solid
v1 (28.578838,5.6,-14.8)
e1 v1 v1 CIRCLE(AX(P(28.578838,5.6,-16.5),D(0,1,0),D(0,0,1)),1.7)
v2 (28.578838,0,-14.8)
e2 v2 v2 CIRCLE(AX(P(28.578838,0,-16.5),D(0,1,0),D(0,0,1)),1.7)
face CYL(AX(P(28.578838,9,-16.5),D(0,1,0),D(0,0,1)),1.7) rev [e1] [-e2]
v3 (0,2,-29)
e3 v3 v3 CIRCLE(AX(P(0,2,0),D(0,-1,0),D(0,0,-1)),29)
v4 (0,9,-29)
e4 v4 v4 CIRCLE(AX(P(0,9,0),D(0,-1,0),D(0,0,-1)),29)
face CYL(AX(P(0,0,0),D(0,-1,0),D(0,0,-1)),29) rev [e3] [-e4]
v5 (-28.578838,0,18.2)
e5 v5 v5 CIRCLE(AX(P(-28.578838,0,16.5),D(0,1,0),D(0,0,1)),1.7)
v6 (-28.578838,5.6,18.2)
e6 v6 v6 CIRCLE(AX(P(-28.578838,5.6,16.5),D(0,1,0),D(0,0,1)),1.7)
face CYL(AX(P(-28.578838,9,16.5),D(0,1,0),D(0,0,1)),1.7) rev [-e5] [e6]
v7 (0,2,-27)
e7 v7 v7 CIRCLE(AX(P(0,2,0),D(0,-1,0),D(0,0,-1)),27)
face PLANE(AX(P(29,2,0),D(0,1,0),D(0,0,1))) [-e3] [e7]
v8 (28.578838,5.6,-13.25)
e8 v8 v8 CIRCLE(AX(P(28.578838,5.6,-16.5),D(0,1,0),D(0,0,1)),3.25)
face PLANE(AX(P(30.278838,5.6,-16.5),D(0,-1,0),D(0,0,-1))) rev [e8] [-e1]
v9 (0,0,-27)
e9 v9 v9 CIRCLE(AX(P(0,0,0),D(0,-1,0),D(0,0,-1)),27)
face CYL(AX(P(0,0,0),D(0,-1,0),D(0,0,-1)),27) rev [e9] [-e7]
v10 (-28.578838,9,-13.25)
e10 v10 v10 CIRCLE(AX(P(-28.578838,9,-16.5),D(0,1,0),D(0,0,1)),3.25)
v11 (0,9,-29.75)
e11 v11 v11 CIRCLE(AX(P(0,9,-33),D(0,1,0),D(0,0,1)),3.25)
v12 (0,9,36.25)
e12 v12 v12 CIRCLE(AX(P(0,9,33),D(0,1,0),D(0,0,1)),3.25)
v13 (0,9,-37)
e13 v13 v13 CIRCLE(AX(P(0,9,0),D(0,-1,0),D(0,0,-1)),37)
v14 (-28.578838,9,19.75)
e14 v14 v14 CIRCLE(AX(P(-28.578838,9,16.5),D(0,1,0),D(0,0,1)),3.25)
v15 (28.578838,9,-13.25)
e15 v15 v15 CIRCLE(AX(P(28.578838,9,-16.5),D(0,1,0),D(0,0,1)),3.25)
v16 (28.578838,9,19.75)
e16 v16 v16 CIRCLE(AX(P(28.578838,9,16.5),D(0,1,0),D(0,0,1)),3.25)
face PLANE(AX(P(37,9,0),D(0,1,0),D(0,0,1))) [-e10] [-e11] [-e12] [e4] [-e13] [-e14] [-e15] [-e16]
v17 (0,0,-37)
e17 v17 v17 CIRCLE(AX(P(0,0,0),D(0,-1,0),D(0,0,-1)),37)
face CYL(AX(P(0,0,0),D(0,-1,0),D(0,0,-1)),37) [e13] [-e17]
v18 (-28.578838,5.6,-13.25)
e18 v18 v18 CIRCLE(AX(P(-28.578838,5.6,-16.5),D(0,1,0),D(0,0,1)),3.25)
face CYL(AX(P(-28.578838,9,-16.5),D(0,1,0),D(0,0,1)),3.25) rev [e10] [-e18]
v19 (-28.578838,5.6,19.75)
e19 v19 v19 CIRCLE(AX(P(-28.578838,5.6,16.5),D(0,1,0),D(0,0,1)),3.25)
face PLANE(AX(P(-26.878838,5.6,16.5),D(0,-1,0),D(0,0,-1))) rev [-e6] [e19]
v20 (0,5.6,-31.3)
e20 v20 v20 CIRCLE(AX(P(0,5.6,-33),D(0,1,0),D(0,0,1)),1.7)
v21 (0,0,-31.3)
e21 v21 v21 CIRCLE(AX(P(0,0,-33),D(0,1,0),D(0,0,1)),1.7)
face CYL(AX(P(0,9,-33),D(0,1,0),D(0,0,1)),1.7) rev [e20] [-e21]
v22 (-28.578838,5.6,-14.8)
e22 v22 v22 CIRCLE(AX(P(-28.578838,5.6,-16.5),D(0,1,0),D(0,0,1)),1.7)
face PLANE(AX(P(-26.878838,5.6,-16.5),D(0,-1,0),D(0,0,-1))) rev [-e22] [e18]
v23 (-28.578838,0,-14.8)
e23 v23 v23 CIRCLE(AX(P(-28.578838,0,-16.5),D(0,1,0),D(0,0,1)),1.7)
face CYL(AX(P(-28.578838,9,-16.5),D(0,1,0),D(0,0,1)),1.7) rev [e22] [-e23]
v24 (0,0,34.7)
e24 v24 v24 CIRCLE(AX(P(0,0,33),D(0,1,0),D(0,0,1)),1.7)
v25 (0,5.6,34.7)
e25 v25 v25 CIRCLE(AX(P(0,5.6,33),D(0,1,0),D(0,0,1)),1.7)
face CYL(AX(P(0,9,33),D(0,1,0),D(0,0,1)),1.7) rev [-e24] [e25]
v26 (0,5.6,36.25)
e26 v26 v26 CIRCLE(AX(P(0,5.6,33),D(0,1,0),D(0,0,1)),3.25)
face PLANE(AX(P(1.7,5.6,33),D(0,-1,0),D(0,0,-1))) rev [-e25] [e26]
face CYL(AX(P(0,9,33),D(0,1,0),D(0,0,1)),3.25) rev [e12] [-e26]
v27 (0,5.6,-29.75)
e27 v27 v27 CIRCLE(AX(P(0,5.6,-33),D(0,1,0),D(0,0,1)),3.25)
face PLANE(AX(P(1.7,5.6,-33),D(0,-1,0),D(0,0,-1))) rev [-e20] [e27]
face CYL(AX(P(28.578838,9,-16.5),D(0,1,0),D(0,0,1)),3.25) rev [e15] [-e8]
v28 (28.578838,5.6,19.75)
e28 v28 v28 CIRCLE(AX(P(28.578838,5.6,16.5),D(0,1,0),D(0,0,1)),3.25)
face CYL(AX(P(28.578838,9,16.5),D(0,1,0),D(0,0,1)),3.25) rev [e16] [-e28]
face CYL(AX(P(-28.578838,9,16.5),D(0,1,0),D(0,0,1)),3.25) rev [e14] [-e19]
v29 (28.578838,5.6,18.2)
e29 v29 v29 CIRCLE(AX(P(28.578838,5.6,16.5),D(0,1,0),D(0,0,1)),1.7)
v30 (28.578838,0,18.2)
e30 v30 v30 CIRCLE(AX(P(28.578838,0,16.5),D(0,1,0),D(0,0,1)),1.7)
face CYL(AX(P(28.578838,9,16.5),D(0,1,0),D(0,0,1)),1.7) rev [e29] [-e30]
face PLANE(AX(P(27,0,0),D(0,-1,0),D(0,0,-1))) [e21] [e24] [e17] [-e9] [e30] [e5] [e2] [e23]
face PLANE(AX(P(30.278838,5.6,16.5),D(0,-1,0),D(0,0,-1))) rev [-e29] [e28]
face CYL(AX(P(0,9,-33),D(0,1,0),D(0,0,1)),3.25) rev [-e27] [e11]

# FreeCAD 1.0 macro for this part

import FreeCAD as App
import Part
import Sketcher
from FreeCAD import Vector
Q = App.Units.Quantity


def add_polygon(sketch, points):
    """Adds a closed chain of lines whose ends are joined by coincident constraints."""
    first, n = sketch.GeometryCount, len(points)
    for a, b in zip(points, points[1:] + points[:1]):
        sketch.addGeometry(Part.LineSegment(App.Vector(*a, 0), App.Vector(*b, 0)), False)
    for i in range(n):
        sketch.addConstraint(Sketcher.Constraint("Coincident", first + i, 2, first + (i + 1) % n, 1))

doc = App.newDocument("Part")
body = doc.addObject("PartDesign::Body", "Body")

# Sketch on XY plane
sketch1 = body.newObject("Sketcher::SketchObject", "Sketch")
sketch1.AttachmentSupport = (doc.getObject("XY_Plane"), [""])
sketch1.MapMode = "FlatFace"
add_polygon(sketch1, [(27, 0), (37, 0), (37, 9), (29, 9), (29, 2), (27, 2)])  # lines 0-5
sketch1.addConstraint(Sketcher.Constraint("Horizontal", 0))
sketch1.addConstraint(Sketcher.Constraint("Vertical", 1))
sketch1.addConstraint(Sketcher.Constraint("Horizontal", 2))
sketch1.addConstraint(Sketcher.Constraint("Vertical", 3))
sketch1.addConstraint(Sketcher.Constraint("Horizontal", 4))
sketch1.addConstraint(Sketcher.Constraint("Vertical", 5))
sketch1.addConstraint(Sketcher.Constraint("PointOnObject", 0, 2, -1))
sketch1.addConstraint(Sketcher.Constraint("Equal", 4, 5))
sketch1.addConstraint(Sketcher.Constraint("DistanceX", 0, 1, 0, 2, Q("10 mm")))
sketch1.addConstraint(Sketcher.Constraint("DistanceX", 2, 2, 2, 1, Q("8 mm")))
sketch1.addConstraint(Sketcher.Constraint("DistanceY", 1, 1, 1, 2, Q("9 mm")))
sketch1.addConstraint(Sketcher.Constraint("DistanceX", -1, 1, 0, 2, Q("37 mm")))
revolution = body.newObject("PartDesign::Revolution", "Revolution")
revolution.Profile = sketch1
revolution.ReferenceAxis = (sketch1, ["V_Axis"])
revolution.Angle = 360

# Sketch on XZ plane
sketch2 = body.newObject("Sketcher::SketchObject", "Sketch001")
sketch2.AttachmentSupport = (doc.getObject("XZ_Plane"), [""])
sketch2.MapMode = "FlatFace"
sketch2.AttachmentOffset = App.Placement(Vector(0, 0, -9), App.Rotation())
sketch2.addGeometry(Part.Circle(Vector(28.578838, 16.5, 0), Vector(0, 0, 1), 1.7), False)
sketch2.addGeometry(Part.Circle(Vector(0, 33, 0), Vector(0, 0, 1), 1.7), False)
sketch2.addGeometry(Part.Circle(Vector(-28.578838, 16.5, 0), Vector(0, 0, 1), 1.7), False)
sketch2.addGeometry(Part.Circle(Vector(-28.578838, -16.5, 0), Vector(0, 0, 1), 1.7), False)
sketch2.addGeometry(Part.Circle(Vector(0, -33, 0), Vector(0, 0, 1), 1.7), False)
sketch2.addGeometry(Part.Circle(Vector(28.578838, -16.5, 0), Vector(0, 0, 1), 1.7), False)
sketch2.addConstraint(Sketcher.Constraint("Equal", 0, 1))
sketch2.addConstraint(Sketcher.Constraint("Equal", 1, 2))
sketch2.addConstraint(Sketcher.Constraint("Equal", 2, 3))
sketch2.addConstraint(Sketcher.Constraint("Equal", 3, 4))
sketch2.addConstraint(Sketcher.Constraint("Equal", 4, 5))
sketch2.addConstraint(Sketcher.Constraint("Symmetric", 0, 3, 3, 3, -1, 1))
sketch2.addConstraint(Sketcher.Constraint("Symmetric", 1, 3, 4, 3, -1, 1))
sketch2.addConstraint(Sketcher.Constraint("Symmetric", 2, 3, 5, 3, -1, 1))
sketch2.addConstraint(Sketcher.Constraint("Symmetric", 0, 3, 2, 3, -2))
sketch2.addConstraint(Sketcher.Constraint("PointOnObject", 1, 3, -2))
sketch2.addConstraint(Sketcher.Constraint("Diameter", 0, Q("3.4 mm")))
sketch2.addConstraint(Sketcher.Constraint("DistanceY", -1, 1, 1, 3, Q("33 mm")))
sketch2.addConstraint(Sketcher.Constraint("DistanceY", 3, 3, 2, 3, Q("33 mm")))
sketch2.addConstraint(Sketcher.Constraint("DistanceX", -1, 1, 0, 3, Q("28.578838 mm")))
doc.recompute()
hole = body.newObject("PartDesign::Hole", "Hole")
hole.Profile = sketch2
hole.ThreadType = "None"
hole.Diameter = 3.4
hole.DepthType = "ThroughAll"
hole.HoleCutType = "Counterbore"
hole.HoleCutDiameter = 6.5
hole.HoleCutDepth = 3.4
hole.Reversed = True

doc.recompute()
